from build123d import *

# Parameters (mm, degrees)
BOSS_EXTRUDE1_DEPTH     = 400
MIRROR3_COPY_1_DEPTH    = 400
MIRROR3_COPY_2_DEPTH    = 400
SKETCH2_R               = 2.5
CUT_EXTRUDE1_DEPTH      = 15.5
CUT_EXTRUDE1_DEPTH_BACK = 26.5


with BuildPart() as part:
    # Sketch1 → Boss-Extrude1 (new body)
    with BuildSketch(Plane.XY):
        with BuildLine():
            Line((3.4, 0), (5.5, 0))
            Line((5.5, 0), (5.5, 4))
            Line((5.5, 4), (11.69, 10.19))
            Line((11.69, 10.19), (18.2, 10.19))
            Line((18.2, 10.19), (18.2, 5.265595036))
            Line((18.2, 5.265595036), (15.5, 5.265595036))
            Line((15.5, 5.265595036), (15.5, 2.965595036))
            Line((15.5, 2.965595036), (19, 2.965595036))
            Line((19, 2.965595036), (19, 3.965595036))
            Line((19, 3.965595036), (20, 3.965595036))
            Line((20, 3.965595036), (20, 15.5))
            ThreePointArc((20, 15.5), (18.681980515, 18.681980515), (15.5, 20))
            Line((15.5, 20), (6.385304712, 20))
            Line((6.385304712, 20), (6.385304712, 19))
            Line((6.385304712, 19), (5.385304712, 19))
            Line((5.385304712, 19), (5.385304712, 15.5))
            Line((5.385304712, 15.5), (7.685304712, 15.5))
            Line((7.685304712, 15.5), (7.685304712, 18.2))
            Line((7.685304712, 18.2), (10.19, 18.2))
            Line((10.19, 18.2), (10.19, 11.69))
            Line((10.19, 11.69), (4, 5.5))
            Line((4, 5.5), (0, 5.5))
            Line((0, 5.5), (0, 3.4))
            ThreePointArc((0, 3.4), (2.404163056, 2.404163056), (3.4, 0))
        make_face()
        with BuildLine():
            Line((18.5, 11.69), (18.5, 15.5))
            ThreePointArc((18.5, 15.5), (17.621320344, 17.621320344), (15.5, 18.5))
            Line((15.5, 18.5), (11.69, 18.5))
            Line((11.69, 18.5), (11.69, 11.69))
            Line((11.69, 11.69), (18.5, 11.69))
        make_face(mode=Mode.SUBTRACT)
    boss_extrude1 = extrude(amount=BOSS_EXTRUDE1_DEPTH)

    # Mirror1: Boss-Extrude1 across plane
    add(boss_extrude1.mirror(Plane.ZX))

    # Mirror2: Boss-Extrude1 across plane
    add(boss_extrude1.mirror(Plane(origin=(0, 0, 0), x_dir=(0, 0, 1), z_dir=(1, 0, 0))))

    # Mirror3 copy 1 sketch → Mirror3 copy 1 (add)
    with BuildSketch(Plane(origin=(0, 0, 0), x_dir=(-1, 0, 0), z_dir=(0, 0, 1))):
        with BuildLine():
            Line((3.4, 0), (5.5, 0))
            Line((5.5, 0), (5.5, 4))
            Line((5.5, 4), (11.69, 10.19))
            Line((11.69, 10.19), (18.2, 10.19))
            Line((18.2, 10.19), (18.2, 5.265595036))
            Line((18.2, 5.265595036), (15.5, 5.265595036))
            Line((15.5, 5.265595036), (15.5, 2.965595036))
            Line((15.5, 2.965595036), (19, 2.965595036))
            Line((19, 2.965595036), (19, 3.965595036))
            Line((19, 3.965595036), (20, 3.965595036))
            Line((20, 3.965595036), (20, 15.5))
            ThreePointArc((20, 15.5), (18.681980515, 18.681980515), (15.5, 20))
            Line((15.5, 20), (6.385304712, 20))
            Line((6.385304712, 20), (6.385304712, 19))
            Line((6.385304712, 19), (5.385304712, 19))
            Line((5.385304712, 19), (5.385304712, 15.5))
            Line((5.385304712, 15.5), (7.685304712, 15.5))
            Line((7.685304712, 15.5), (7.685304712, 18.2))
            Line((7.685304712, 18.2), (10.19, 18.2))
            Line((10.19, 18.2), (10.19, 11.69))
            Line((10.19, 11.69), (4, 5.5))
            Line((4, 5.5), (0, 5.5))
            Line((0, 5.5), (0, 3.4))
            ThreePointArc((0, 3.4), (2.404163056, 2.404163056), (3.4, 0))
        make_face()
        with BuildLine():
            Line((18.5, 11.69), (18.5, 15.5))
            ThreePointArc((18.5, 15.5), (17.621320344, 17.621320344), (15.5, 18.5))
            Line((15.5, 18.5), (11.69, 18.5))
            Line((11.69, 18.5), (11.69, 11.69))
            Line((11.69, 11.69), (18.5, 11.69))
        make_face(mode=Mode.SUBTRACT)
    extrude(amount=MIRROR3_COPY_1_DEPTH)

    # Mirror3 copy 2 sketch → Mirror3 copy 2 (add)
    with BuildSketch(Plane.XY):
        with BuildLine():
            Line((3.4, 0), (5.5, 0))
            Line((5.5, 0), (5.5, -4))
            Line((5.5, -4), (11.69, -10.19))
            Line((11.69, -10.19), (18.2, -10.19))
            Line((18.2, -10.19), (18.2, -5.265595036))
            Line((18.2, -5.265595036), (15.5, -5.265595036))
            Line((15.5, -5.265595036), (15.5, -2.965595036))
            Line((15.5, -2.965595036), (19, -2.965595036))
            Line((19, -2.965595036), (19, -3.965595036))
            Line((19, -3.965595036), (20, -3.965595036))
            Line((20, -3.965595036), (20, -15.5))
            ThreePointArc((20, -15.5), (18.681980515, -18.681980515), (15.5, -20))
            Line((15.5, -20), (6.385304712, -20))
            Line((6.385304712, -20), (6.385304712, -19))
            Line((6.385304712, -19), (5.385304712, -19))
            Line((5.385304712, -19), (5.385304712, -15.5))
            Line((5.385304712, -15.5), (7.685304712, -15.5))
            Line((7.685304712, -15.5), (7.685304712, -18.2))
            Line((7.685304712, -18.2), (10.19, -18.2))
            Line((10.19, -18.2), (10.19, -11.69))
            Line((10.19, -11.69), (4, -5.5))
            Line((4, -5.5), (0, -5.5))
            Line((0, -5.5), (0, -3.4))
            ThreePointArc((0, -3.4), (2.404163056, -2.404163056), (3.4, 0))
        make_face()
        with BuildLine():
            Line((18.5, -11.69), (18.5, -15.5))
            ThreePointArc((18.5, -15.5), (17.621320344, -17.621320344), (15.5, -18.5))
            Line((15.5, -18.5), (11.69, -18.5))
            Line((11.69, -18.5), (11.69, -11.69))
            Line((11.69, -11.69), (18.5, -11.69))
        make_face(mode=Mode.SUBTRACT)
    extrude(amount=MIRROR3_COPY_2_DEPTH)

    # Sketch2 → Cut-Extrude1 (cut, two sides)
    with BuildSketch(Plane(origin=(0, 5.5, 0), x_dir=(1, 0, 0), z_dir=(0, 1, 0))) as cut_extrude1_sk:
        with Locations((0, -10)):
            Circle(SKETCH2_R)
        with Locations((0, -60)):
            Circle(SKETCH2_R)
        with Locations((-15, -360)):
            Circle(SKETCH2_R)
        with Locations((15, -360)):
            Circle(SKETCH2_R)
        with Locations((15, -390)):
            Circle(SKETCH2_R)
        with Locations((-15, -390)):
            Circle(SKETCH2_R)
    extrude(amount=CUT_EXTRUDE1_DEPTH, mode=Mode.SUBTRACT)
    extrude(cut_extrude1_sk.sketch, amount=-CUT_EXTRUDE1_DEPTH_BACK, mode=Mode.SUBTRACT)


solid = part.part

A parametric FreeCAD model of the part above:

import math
import FreeCAD as App
import Part
import Sketcher
from FreeCAD import Vector
Q = App.Units.Quantity

doc = App.newDocument("Part")
body = doc.addObject("PartDesign::Body", "Body")

# Sketch on XY plane
sketch1 = doc.addObject("Sketcher::SketchObject", "Sketch")
body.addObject(sketch1)
sketch1.AttachmentSupport = (doc.XY_Plane, [""])
sketch1.MapMode = "FlatFace"
sketch1.addGeometry(Part.LineSegment(Vector(3.4, 0, 0), Vector(5.5, 0, 0)), False)
sketch1.addGeometry(Part.LineSegment(Vector(5.5, 0, 0), Vector(5.5, 4, 0)), False)
sketch1.addGeometry(Part.LineSegment(Vector(5.5, 4, 0), Vector(11.69, 10.19, 0)), False)
sketch1.addGeometry(Part.LineSegment(Vector(11.69, 10.19, 0), Vector(18.2, 10.19, 0)), False)
sketch1.addGeometry(Part.LineSegment(Vector(18.2, 10.19, 0), Vector(18.2, 5.265595, 0)), False)
sketch1.addGeometry(Part.LineSegment(Vector(18.2, 5.265595, 0), Vector(15.5, 5.265595, 0)), False)
sketch1.addGeometry(Part.LineSegment(Vector(15.5, 5.265595, 0), Vector(15.5, 2.965595, 0)), False)
sketch1.addGeometry(Part.LineSegment(Vector(15.5, 2.965595, 0), Vector(19, 2.965595, 0)), False)
sketch1.addGeometry(Part.LineSegment(Vector(19, 2.965595, 0), Vector(19, 3.965595, 0)), False)
sketch1.addGeometry(Part.LineSegment(Vector(19, 3.965595, 0), Vector(20, 3.965595, 0)), False)
sketch1.addGeometry(Part.LineSegment(Vector(20, 3.965595, 0), Vector(20, 15.5, 0)), False)
sketch1.addGeometry(Part.ArcOfCircle(Part.Circle(Vector(15.5, 15.5, 0), Vector(0, 0, 1), 4.5), math.radians(0), math.radians(90)), False)
sketch1.addGeometry(Part.LineSegment(Vector(15.5, 20, 0), Vector(6.385305, 20, 0)), False)
sketch1.addGeometry(Part.LineSegment(Vector(6.385305, 20, 0), Vector(6.385305, 19, 0)), False)
sketch1.addGeometry(Part.LineSegment(Vector(6.385305, 19, 0), Vector(5.385305, 19, 0)), False)
sketch1.addGeometry(Part.LineSegment(Vector(5.385305, 19, 0), Vector(5.385305, 15.5, 0)), False)
sketch1.addGeometry(Part.LineSegment(Vector(5.385305, 15.5, 0), Vector(7.685305, 15.5, 0)), False)
sketch1.addGeometry(Part.LineSegment(Vector(7.685305, 15.5, 0), Vector(7.685305, 18.2, 0)), False)
sketch1.addGeometry(Part.LineSegment(Vector(7.685305, 18.2, 0), Vector(10.19, 18.2, 0)), False)
sketch1.addGeometry(Part.LineSegment(Vector(10.19, 18.2, 0), Vector(10.19, 11.69, 0)), False)
sketch1.addGeometry(Part.LineSegment(Vector(10.19, 11.69, 0), Vector(4, 5.5, 0)), False)
sketch1.addGeometry(Part.LineSegment(Vector(4, 5.5, 0), Vector(0, 5.5, 0)), False)
sketch1.addGeometry(Part.LineSegment(Vector(0, 5.5, 0), Vector(0, 3.4, 0)), False)
sketch1.addGeometry(Part.ArcOfCircle(Part.Circle(Vector(0, 0, 0), Vector(0, 0, 1), 3.4), math.radians(0), math.radians(90)), False)
sketch1.addGeometry(Part.LineSegment(Vector(18.5, 15.5, 0), Vector(18.5, 11.69, 0)), False)
sketch1.addGeometry(Part.LineSegment(Vector(18.5, 11.69, 0), Vector(11.69, 11.69, 0)), False)
sketch1.addGeometry(Part.LineSegment(Vector(11.69, 11.69, 0), Vector(11.69, 18.5, 0)), False)
sketch1.addGeometry(Part.LineSegment(Vector(11.69, 18.5, 0), Vector(15.5, 18.5, 0)), False)
sketch1.addGeometry(Part.ArcOfCircle(Part.Circle(Vector(15.5, 15.5, 0), Vector(0, 0, 1), 3), math.radians(0), math.radians(90)), False)
sketch1.addConstraint(Sketcher.Constraint("Coincident", 0, 2, 1, 1))
sketch1.addConstraint(Sketcher.Constraint("Coincident", 1, 2, 2, 1))
sketch1.addConstraint(Sketcher.Constraint("Coincident", 2, 2, 3, 1))
sketch1.addConstraint(Sketcher.Constraint("Coincident", 3, 2, 4, 1))
sketch1.addConstraint(Sketcher.Constraint("Coincident", 4, 2, 5, 1))
sketch1.addConstraint(Sketcher.Constraint("Coincident", 5, 2, 6, 1))
sketch1.addConstraint(Sketcher.Constraint("Coincident", 6, 2, 7, 1))
sketch1.addConstraint(Sketcher.Constraint("Coincident", 7, 2, 8, 1))
sketch1.addConstraint(Sketcher.Constraint("Coincident", 8, 2, 9, 1))
sketch1.addConstraint(Sketcher.Constraint("Coincident", 9, 2, 10, 1))
sketch1.addConstraint(Sketcher.Constraint("Tangent", 10, 2, 11, 1))
sketch1.addConstraint(Sketcher.Constraint("Tangent", 11, 2, 12, 1))
sketch1.addConstraint(Sketcher.Constraint("Coincident", 12, 2, 13, 1))
sketch1.addConstraint(Sketcher.Constraint("Coincident", 13, 2, 14, 1))
sketch1.addConstraint(Sketcher.Constraint("Coincident", 14, 2, 15, 1))
sketch1.addConstraint(Sketcher.Constraint("Coincident", 15, 2, 16, 1))
sketch1.addConstraint(Sketcher.Constraint("Coincident", 16, 2, 17, 1))
sketch1.addConstraint(Sketcher.Constraint("Coincident", 17, 2, 18, 1))
sketch1.addConstraint(Sketcher.Constraint("Coincident", 18, 2, 19, 1))
sketch1.addConstraint(Sketcher.Constraint("Coincident", 19, 2, 20, 1))
sketch1.addConstraint(Sketcher.Constraint("Coincident", 20, 2, 21, 1))
sketch1.addConstraint(Sketcher.Constraint("Coincident", 21, 2, 22, 1))
sketch1.addConstraint(Sketcher.Constraint("Coincident", 22, 2, 23, 2))
sketch1.addConstraint(Sketcher.Constraint("Coincident", 23, 1, 0, 1))
sketch1.addConstraint(Sketcher.Constraint("Coincident", 24, 2, 25, 1))
sketch1.addConstraint(Sketcher.Constraint("Coincident", 25, 2, 26, 1))
sketch1.addConstraint(Sketcher.Constraint("Coincident", 26, 2, 27, 1))
sketch1.addConstraint(Sketcher.Constraint("Tangent", 27, 2, 28, 2))
sketch1.addConstraint(Sketcher.Constraint("Tangent", 28, 1, 24, 1))
sketch1.addConstraint(Sketcher.Constraint("Horizontal", 0))
sketch1.addConstraint(Sketcher.Constraint("Vertical", 1))
sketch1.addConstraint(Sketcher.Constraint("Horizontal", 3))
sketch1.addConstraint(Sketcher.Constraint("Vertical", 4))
sketch1.addConstraint(Sketcher.Constraint("Horizontal", 5))
sketch1.addConstraint(Sketcher.Constraint("Vertical", 6))
sketch1.addConstraint(Sketcher.Constraint("Horizontal", 7))
sketch1.addConstraint(Sketcher.Constraint("Vertical", 8))
sketch1.addConstraint(Sketcher.Constraint("Horizontal", 9))
sketch1.addConstraint(Sketcher.Constraint("Vertical", 10))
sketch1.addConstraint(Sketcher.Constraint("Horizontal", 12))
sketch1.addConstraint(Sketcher.Constraint("Vertical", 13))
sketch1.addConstraint(Sketcher.Constraint("Horizontal", 14))
sketch1.addConstraint(Sketcher.Constraint("Vertical", 15))
sketch1.addConstraint(Sketcher.Constraint("Horizontal", 16))
sketch1.addConstraint(Sketcher.Constraint("Vertical", 17))
sketch1.addConstraint(Sketcher.Constraint("Horizontal", 18))
sketch1.addConstraint(Sketcher.Constraint("Vertical", 19))
sketch1.addConstraint(Sketcher.Constraint("Horizontal", 21))
sketch1.addConstraint(Sketcher.Constraint("Vertical", 22))
sketch1.addConstraint(Sketcher.Constraint("Vertical", 24))
sketch1.addConstraint(Sketcher.Constraint("Horizontal", 25))
sketch1.addConstraint(Sketcher.Constraint("Vertical", 26))
sketch1.addConstraint(Sketcher.Constraint("Horizontal", 27))
sketch1.addConstraint(Sketcher.Constraint("Coincident", 23, 3, -1, 1))
sketch1.addConstraint(Sketcher.Constraint("Coincident", 28, 3, 11, 3))
sketch1.addConstraint(Sketcher.Constraint("PointOnObject", 0, 2, -1))
sketch1.addConstraint(Sketcher.Constraint("PointOnObject", 21, 2, -2))
sketch1.addConstraint(Sketcher.Constraint("Parallel", 2, 20))
sketch1.addConstraint(Sketcher.Constraint("Horizontal", 10, 2, 15, 2))
sketch1.addConstraint(Sketcher.Constraint("Horizontal", 19, 2, 24, 2))
sketch1.addConstraint(Sketcher.Constraint("Vertical", 28, 3, 5, 2))
sketch1.addConstraint(Sketcher.Constraint("Vertical", 2, 2, 25, 2))
sketch1.addConstraint(Sketcher.Constraint("Equal", 9, 14))
sketch1.addConstraint(Sketcher.Constraint("Equal", 21, 1))
sketch1.addConstraint(Sketcher.Constraint("Equal", 16, 6))
sketch1.addConstraint(Sketcher.Constraint("Equal", 14, 8))
sketch1.addConstraint(Sketcher.Constraint("Equal", 8, 13))
sketch1.addConstraint(Sketcher.Constraint("Equal", 5, 17))
sketch1.addConstraint(Sketcher.Constraint("Equal", 3, 19))
sketch1.addConstraint(Sketcher.Constraint("Equal", 0, 22))
sketch1.addConstraint(Sketcher.Constraint("Equal", 2, 20))
sketch1.addConstraint(Sketcher.Constraint("Radius", 28, Q("3 mm")))
sketch1.addConstraint(Sketcher.Constraint("Radius", 11, Q("4.5 mm")))
sketch1.addConstraint(Sketcher.Constraint("Radius", 23, Q("3.4 mm")))
sketch1.addConstraint(Sketcher.Constraint("DistanceX", 9, 1, 9, 2, Q("1 mm")))
sketch1.addConstraint(Sketcher.Constraint("DistanceX", 21, 2, 21, 1, Q("4 mm")))
sketch1.addConstraint(Sketcher.Constraint("Angle", 2, Q("45 deg")))
sketch1.addConstraint(Sketcher.Constraint("DistanceX", 0, 1, 0, 2, Q("2.1 mm")))
sketch1.addConstraint(Sketcher.Constraint("DistanceX", 5, 2, 5, 1, Q("2.7 mm")))
sketch1.addConstraint(Sketcher.Constraint("DistanceX", 16, 1, 16, 2, Q("2.3 mm")))
sketch1.addConstraint(Sketcher.Constraint("DistanceX", -1, 1, 7, 2, Q("19 mm")))
sketch1.addConstraint(Sketcher.Constraint("DistanceX", 3, 1, 3, 2, Q("6.51 mm")))
sketch1.addConstraint(Sketcher.Constraint("DistanceX", 12, 2, 12, 1, Q("9.114695 mm")))
sketch1.addConstraint(Sketcher.Constraint("DistanceY", 4, 2, 4, 1, Q("4.924405 mm")))
pad1 = doc.addObject("PartDesign::Pad", "Pad")
body.addObject(pad1)
pad1.Profile = sketch1
pad1.Length = 400
doc.recompute()

mirrored = doc.addObject("PartDesign::Mirrored", "Mirrored")
body.addObject(mirrored)
mirrored.Originals = [pad1]
mirrored.MirrorPlane = (doc.XZ_Plane, [""])
body.Tip = mirrored
doc.recompute()

mirrored2 = doc.addObject("PartDesign::Mirrored", "Mirrored001")
body.addObject(mirrored2)
mirrored2.Originals = [pad1]
mirrored2.MirrorPlane = (doc.YZ_Plane, [""])
body.Tip = mirrored2

# Sketch on XY plane
sketch2 = doc.addObject("Sketcher::SketchObject", "Sketch001")
body.addObject(sketch2)
sketch2.AttachmentSupport = (doc.XY_Plane, [""])
sketch2.MapMode = "FlatFace"
sketch2.addGeometry(Part.LineSegment(Vector(-3.4, 0, 0), Vector(-5.5, 0, 0)), False)
sketch2.addGeometry(Part.LineSegment(Vector(-5.5, 0, 0), Vector(-5.5, -4, 0)), False)
sketch2.addGeometry(Part.LineSegment(Vector(-5.5, -4, 0), Vector(-11.69, -10.19, 0)), False)
sketch2.addGeometry(Part.LineSegment(Vector(-11.69, -10.19, 0), Vector(-18.2, -10.19, 0)), False)
sketch2.addGeometry(Part.LineSegment(Vector(-18.2, -10.19, 0), Vector(-18.2, -5.265595, 0)), False)
sketch2.addGeometry(Part.LineSegment(Vector(-18.2, -5.265595, 0), Vector(-15.5, -5.265595, 0)), False)
sketch2.addGeometry(Part.LineSegment(Vector(-15.5, -5.265595, 0), Vector(-15.5, -2.965595, 0)), False)
sketch2.addGeometry(Part.LineSegment(Vector(-15.5, -2.965595, 0), Vector(-19, -2.965595, 0)), False)
sketch2.addGeometry(Part.LineSegment(Vector(-19, -2.965595, 0), Vector(-19, -3.965595, 0)), False)
sketch2.addGeometry(Part.LineSegment(Vector(-19, -3.965595, 0), Vector(-20, -3.965595, 0)), False)
sketch2.addGeometry(Part.LineSegment(Vector(-20, -3.965595, 0), Vector(-20, -15.5, 0)), False)
sketch2.addGeometry(Part.ArcOfCircle(Part.Circle(Vector(-15.5, -15.5, 0), Vector(0, 0, 1), 4.5), math.radians(-180), math.radians(-90)), False)
sketch2.addGeometry(Part.LineSegment(Vector(-15.5, -20, 0), Vector(-6.385305, -20, 0)), False)
sketch2.addGeometry(Part.LineSegment(Vector(-6.385305, -20, 0), Vector(-6.385305, -19, 0)), False)
sketch2.addGeometry(Part.LineSegment(Vector(-6.385305, -19, 0), Vector(-5.385305, -19, 0)), False)
sketch2.addGeometry(Part.LineSegment(Vector(-5.385305, -19, 0), Vector(-5.385305, -15.5, 0)), False)
sketch2.addGeometry(Part.LineSegment(Vector(-5.385305, -15.5, 0), Vector(-7.685305, -15.5, 0)), False)
sketch2.addGeometry(Part.LineSegment(Vector(-7.685305, -15.5, 0), Vector(-7.685305, -18.2, 0)), False)
sketch2.addGeometry(Part.LineSegment(Vector(-7.685305, -18.2, 0), Vector(-10.19, -18.2, 0)), False)
sketch2.addGeometry(Part.LineSegment(Vector(-10.19, -18.2, 0), Vector(-10.19, -11.69, 0)), False)
sketch2.addGeometry(Part.LineSegment(Vector(-10.19, -11.69, 0), Vector(-4, -5.5, 0)), False)
sketch2.addGeometry(Part.LineSegment(Vector(-4, -5.5, 0), Vector(0, -5.5, 0)), False)
sketch2.addGeometry(Part.LineSegment(Vector(0, -5.5, 0), Vector(0, -3.4, 0)), False)
sketch2.addGeometry(Part.ArcOfCircle(Part.Circle(Vector(0, 0, 0), Vector(0, 0, 1), 3.4), math.radians(180), math.radians(270)), False)
sketch2.addGeometry(Part.LineSegment(Vector(-18.5, -15.5, 0), Vector(-18.5, -11.69, 0)), False)
sketch2.addGeometry(Part.LineSegment(Vector(-18.5, -11.69, 0), Vector(-11.69, -11.69, 0)), False)
sketch2.addGeometry(Part.LineSegment(Vector(-11.69, -11.69, 0), Vector(-11.69, -18.5, 0)), False)
sketch2.addGeometry(Part.LineSegment(Vector(-11.69, -18.5, 0), Vector(-15.5, -18.5, 0)), False)
sketch2.addGeometry(Part.ArcOfCircle(Part.Circle(Vector(-15.5, -15.5, 0), Vector(0, 0, 1), 3), math.radians(180), math.radians(270)), False)
sketch2.addConstraint(Sketcher.Constraint("Coincident", 0, 2, 1, 1))
sketch2.addConstraint(Sketcher.Constraint("Coincident", 1, 2, 2, 1))
sketch2.addConstraint(Sketcher.Constraint("Coincident", 2, 2, 3, 1))
sketch2.addConstraint(Sketcher.Constraint("Coincident", 3, 2, 4, 1))
sketch2.addConstraint(Sketcher.Constraint("Coincident", 4, 2, 5, 1))
sketch2.addConstraint(Sketcher.Constraint("Coincident", 5, 2, 6, 1))
sketch2.addConstraint(Sketcher.Constraint("Coincident", 6, 2, 7, 1))
sketch2.addConstraint(Sketcher.Constraint("Coincident", 7, 2, 8, 1))
sketch2.addConstraint(Sketcher.Constraint("Coincident", 8, 2, 9, 1))
sketch2.addConstraint(Sketcher.Constraint("Coincident", 9, 2, 10, 1))
sketch2.addConstraint(Sketcher.Constraint("Tangent", 10, 2, 11, 1))
sketch2.addConstraint(Sketcher.Constraint("Tangent", 11, 2, 12, 1))
sketch2.addConstraint(Sketcher.Constraint("Coincident", 12, 2, 13, 1))
sketch2.addConstraint(Sketcher.Constraint("Coincident", 13, 2, 14, 1))
sketch2.addConstraint(Sketcher.Constraint("Coincident", 14, 2, 15, 1))
sketch2.addConstraint(Sketcher.Constraint("Coincident", 15, 2, 16, 1))
sketch2.addConstraint(Sketcher.Constraint("Coincident", 16, 2, 17, 1))
sketch2.addConstraint(Sketcher.Constraint("Coincident", 17, 2, 18, 1))
sketch2.addConstraint(Sketcher.Constraint("Coincident", 18, 2, 19, 1))
sketch2.addConstraint(Sketcher.Constraint("Coincident", 19, 2, 20, 1))
sketch2.addConstraint(Sketcher.Constraint("Coincident", 20, 2, 21, 1))
sketch2.addConstraint(Sketcher.Constraint("Coincident", 21, 2, 22, 1))
sketch2.addConstraint(Sketcher.Constraint("Coincident", 22, 2, 23, 2))
sketch2.addConstraint(Sketcher.Constraint("Coincident", 23, 1, 0, 1))
sketch2.addConstraint(Sketcher.Constraint("Coincident", 24, 2, 25, 1))
sketch2.addConstraint(Sketcher.Constraint("Coincident", 25, 2, 26, 1))
sketch2.addConstraint(Sketcher.Constraint("Coincident", 26, 2, 27, 1))
sketch2.addConstraint(Sketcher.Constraint("Tangent", 27, 2, 28, 2))
sketch2.addConstraint(Sketcher.Constraint("Tangent", 28, 1, 24, 1))
sketch2.addConstraint(Sketcher.Constraint("Horizontal", 0))
sketch2.addConstraint(Sketcher.Constraint("Vertical", 1))
sketch2.addConstraint(Sketcher.Constraint("Horizontal", 3))
sketch2.addConstraint(Sketcher.Constraint("Vertical", 4))
sketch2.addConstraint(Sketcher.Constraint("Horizontal", 5))
sketch2.addConstraint(Sketcher.Constraint("Vertical", 6))
sketch2.addConstraint(Sketcher.Constraint("Horizontal", 7))
sketch2.addConstraint(Sketcher.Constraint("Vertical", 8))
sketch2.addConstraint(Sketcher.Constraint("Horizontal", 9))
sketch2.addConstraint(Sketcher.Constraint("Vertical", 10))
sketch2.addConstraint(Sketcher.Constraint("Horizontal", 12))
sketch2.addConstraint(Sketcher.Constraint("Vertical", 13))
sketch2.addConstraint(Sketcher.Constraint("Horizontal", 14))
sketch2.addConstraint(Sketcher.Constraint("Vertical", 15))
sketch2.addConstraint(Sketcher.Constraint("Horizontal", 16))
sketch2.addConstraint(Sketcher.Constraint("Vertical", 17))
sketch2.addConstraint(Sketcher.Constraint("Horizontal", 18))
sketch2.addConstraint(Sketcher.Constraint("Vertical", 19))
sketch2.addConstraint(Sketcher.Constraint("Horizontal", 21))
sketch2.addConstraint(Sketcher.Constraint("Vertical", 22))
sketch2.addConstraint(Sketcher.Constraint("Vertical", 24))
sketch2.addConstraint(Sketcher.Constraint("Horizontal", 25))
sketch2.addConstraint(Sketcher.Constraint("Vertical", 26))
sketch2.addConstraint(Sketcher.Constraint("Horizontal", 27))
sketch2.addConstraint(Sketcher.Constraint("Coincident", 23, 3, -1, 1))
sketch2.addConstraint(Sketcher.Constraint("Coincident", 28, 3, 11, 3))
sketch2.addConstraint(Sketcher.Constraint("PointOnObject", 0, 2, -1))
sketch2.addConstraint(Sketcher.Constraint("PointOnObject", 21, 2, -2))
sketch2.addConstraint(Sketcher.Constraint("Parallel", 2, 20))
sketch2.addConstraint(Sketcher.Constraint("Horizontal", 10, 2, 15, 2))
sketch2.addConstraint(Sketcher.Constraint("Horizontal", 19, 2, 24, 2))
sketch2.addConstraint(Sketcher.Constraint("Vertical", 28, 3, 5, 2))
sketch2.addConstraint(Sketcher.Constraint("Vertical", 2, 2, 25, 2))
sketch2.addConstraint(Sketcher.Constraint("Equal", 9, 14))
sketch2.addConstraint(Sketcher.Constraint("Equal", 21, 1))
sketch2.addConstraint(Sketcher.Constraint("Equal", 16, 6))
sketch2.addConstraint(Sketcher.Constraint("Equal", 14, 8))
sketch2.addConstraint(Sketcher.Constraint("Equal", 8, 13))
sketch2.addConstraint(Sketcher.Constraint("Equal", 5, 17))
sketch2.addConstraint(Sketcher.Constraint("Equal", 3, 19))
sketch2.addConstraint(Sketcher.Constraint("Equal", 0, 22))
sketch2.addConstraint(Sketcher.Constraint("Equal", 2, 20))
sketch2.addConstraint(Sketcher.Constraint("Radius", 28, Q("3 mm")))
sketch2.addConstraint(Sketcher.Constraint("Radius", 11, Q("4.5 mm")))
sketch2.addConstraint(Sketcher.Constraint("Radius", 23, Q("3.4 mm")))
sketch2.addConstraint(Sketcher.Constraint("DistanceX", 9, 2, 9, 1, Q("1 mm")))
sketch2.addConstraint(Sketcher.Constraint("DistanceX", 21, 1, 21, 2, Q("4 mm")))
sketch2.addConstraint(Sketcher.Constraint("Angle", 2, Q("-135 deg")))
sketch2.addConstraint(Sketcher.Constraint("DistanceX", 0, 2, 0, 1, Q("2.1 mm")))
sketch2.addConstraint(Sketcher.Constraint("DistanceX", 5, 1, 5, 2, Q("2.7 mm")))
sketch2.addConstraint(Sketcher.Constraint("DistanceX", 16, 2, 16, 1, Q("2.3 mm")))
sketch2.addConstraint(Sketcher.Constraint("DistanceX", 7, 2, -1, 1, Q("19 mm")))
sketch2.addConstraint(Sketcher.Constraint("DistanceX", 3, 2, 3, 1, Q("6.51 mm")))
sketch2.addConstraint(Sketcher.Constraint("DistanceX", 12, 1, 12, 2, Q("9.114695 mm")))
sketch2.addConstraint(Sketcher.Constraint("DistanceY", 4, 1, 4, 2, Q("4.924405 mm")))
pad2 = doc.addObject("PartDesign::Pad", "Pad001")
body.addObject(pad2)
pad2.Profile = sketch2
pad2.Length = 400

# Sketch on XY plane
sketch3 = doc.addObject("Sketcher::SketchObject", "Sketch002")
body.addObject(sketch3)
sketch3.AttachmentSupport = (doc.XY_Plane, [""])
sketch3.MapMode = "FlatFace"
sketch3.addGeometry(Part.LineSegment(Vector(5.5, 0, 0), Vector(3.4, 0, 0)), False)
sketch3.addGeometry(Part.ArcOfCircle(Part.Circle(Vector(0, 0, 0), Vector(0, 0, 1), 3.4), math.radians(-90), math.radians(0)), False)
sketch3.addGeometry(Part.LineSegment(Vector(0, -3.4, 0), Vector(0, -5.5, 0)), False)
sketch3.addGeometry(Part.LineSegment(Vector(0, -5.5, 0), Vector(4, -5.5, 0)), False)
sketch3.addGeometry(Part.LineSegment(Vector(4, -5.5, 0), Vector(10.19, -11.69, 0)), False)
sketch3.addGeometry(Part.LineSegment(Vector(10.19, -11.69, 0), Vector(10.19, -18.2, 0)), False)
sketch3.addGeometry(Part.LineSegment(Vector(10.19, -18.2, 0), Vector(7.685305, -18.2, 0)), False)
sketch3.addGeometry(Part.LineSegment(Vector(7.685305, -18.2, 0), Vector(7.685305, -15.5, 0)), False)
sketch3.addGeometry(Part.LineSegment(Vector(7.685305, -15.5, 0), Vector(5.385305, -15.5, 0)), False)
sketch3.addGeometry(Part.LineSegment(Vector(5.385305, -15.5, 0), Vector(5.385305, -19, 0)), False)
sketch3.addGeometry(Part.LineSegment(Vector(5.385305, -19, 0), Vector(6.385305, -19, 0)), False)
sketch3.addGeometry(Part.LineSegment(Vector(6.385305, -19, 0), Vector(6.385305, -20, 0)), False)
sketch3.addGeometry(Part.LineSegment(Vector(6.385305, -20, 0), Vector(15.5, -20, 0)), False)
sketch3.addGeometry(Part.ArcOfCircle(Part.Circle(Vector(15.5, -15.5, 0), Vector(0, 0, 1), 4.5), math.radians(-90), math.radians(0)), False)
sketch3.addGeometry(Part.LineSegment(Vector(20, -15.5, 0), Vector(20, -3.965595, 0)), False)
sketch3.addGeometry(Part.LineSegment(Vector(20, -3.965595, 0), Vector(19, -3.965595, 0)), False)
sketch3.addGeometry(Part.LineSegment(Vector(19, -3.965595, 0), Vector(19, -2.965595, 0)), False)
sketch3.addGeometry(Part.LineSegment(Vector(19, -2.965595, 0), Vector(15.5, -2.965595, 0)), False)
sketch3.addGeometry(Part.LineSegment(Vector(15.5, -2.965595, 0), Vector(15.5, -5.265595, 0)), False)
sketch3.addGeometry(Part.LineSegment(Vector(15.5, -5.265595, 0), Vector(18.2, -5.265595, 0)), False)
sketch3.addGeometry(Part.LineSegment(Vector(18.2, -5.265595, 0), Vector(18.2, -10.19, 0)), False)
sketch3.addGeometry(Part.LineSegment(Vector(18.2, -10.19, 0), Vector(11.69, -10.19, 0)), False)
sketch3.addGeometry(Part.LineSegment(Vector(11.69, -10.19, 0), Vector(5.5, -4, 0)), False)
sketch3.addGeometry(Part.LineSegment(Vector(5.5, -4, 0), Vector(5.5, 0, 0)), False)
sketch3.addGeometry(Part.LineSegment(Vector(18.5, -11.69, 0), Vector(18.5, -15.5, 0)), False)
sketch3.addGeometry(Part.ArcOfCircle(Part.Circle(Vector(15.5, -15.5, 0), Vector(0, 0, 1), 3), math.radians(-90), math.radians(0)), False)
sketch3.addGeometry(Part.LineSegment(Vector(15.5, -18.5, 0), Vector(11.69, -18.5, 0)), False)
sketch3.addGeometry(Part.LineSegment(Vector(11.69, -18.5, 0), Vector(11.69, -11.69, 0)), False)
sketch3.addGeometry(Part.LineSegment(Vector(11.69, -11.69, 0), Vector(18.5, -11.69, 0)), False)
sketch3.addConstraint(Sketcher.Constraint("Coincident", 0, 2, 1, 2))
sketch3.addConstraint(Sketcher.Constraint("Coincident", 1, 1, 2, 1))
sketch3.addConstraint(Sketcher.Constraint("Coincident", 2, 2, 3, 1))
sketch3.addConstraint(Sketcher.Constraint("Coincident", 3, 2, 4, 1))
sketch3.addConstraint(Sketcher.Constraint("Coincident", 4, 2, 5, 1))
sketch3.addConstraint(Sketcher.Constraint("Coincident", 5, 2, 6, 1))
sketch3.addConstraint(Sketcher.Constraint("Coincident", 6, 2, 7, 1))
sketch3.addConstraint(Sketcher.Constraint("Coincident", 7, 2, 8, 1))
sketch3.addConstraint(Sketcher.Constraint("Coincident", 8, 2, 9, 1))
sketch3.addConstraint(Sketcher.Constraint("Coincident", 9, 2, 10, 1))
sketch3.addConstraint(Sketcher.Constraint("Coincident", 10, 2, 11, 1))
sketch3.addConstraint(Sketcher.Constraint("Coincident", 11, 2, 12, 1))
sketch3.addConstraint(Sketcher.Constraint("Tangent", 12, 2, 13, 1))
sketch3.addConstraint(Sketcher.Constraint("Tangent", 13, 2, 14, 1))
sketch3.addConstraint(Sketcher.Constraint("Coincident", 14, 2, 15, 1))
sketch3.addConstraint(Sketcher.Constraint("Coincident", 15, 2, 16, 1))
sketch3.addConstraint(Sketcher.Constraint("Coincident", 16, 2, 17, 1))
sketch3.addConstraint(Sketcher.Constraint("Coincident", 17, 2, 18, 1))
sketch3.addConstraint(Sketcher.Constraint("Coincident", 18, 2, 19, 1))
sketch3.addConstraint(Sketcher.Constraint("Coincident", 19, 2, 20, 1))
sketch3.addConstraint(Sketcher.Constraint("Coincident", 20, 2, 21, 1))
sketch3.addConstraint(Sketcher.Constraint("Coincident", 21, 2, 22, 1))
sketch3.addConstraint(Sketcher.Constraint("Coincident", 22, 2, 23, 1))
sketch3.addConstraint(Sketcher.Constraint("Coincident", 23, 2, 0, 1))
sketch3.addConstraint(Sketcher.Constraint("Tangent", 24, 2, 25, 2))
sketch3.addConstraint(Sketcher.Constraint("Tangent", 25, 1, 26, 1))
sketch3.addConstraint(Sketcher.Constraint("Coincident", 26, 2, 27, 1))
sketch3.addConstraint(Sketcher.Constraint("Coincident", 27, 2, 28, 1))
sketch3.addConstraint(Sketcher.Constraint("Coincident", 28, 2, 24, 1))
sketch3.addConstraint(Sketcher.Constraint("Horizontal", 0))
sketch3.addConstraint(Sketcher.Constraint("Vertical", 2))
sketch3.addConstraint(Sketcher.Constraint("Horizontal", 3))
sketch3.addConstraint(Sketcher.Constraint("Vertical", 5))
sketch3.addConstraint(Sketcher.Constraint("Horizontal", 6))
sketch3.addConstraint(Sketcher.Constraint("Vertical", 7))
sketch3.addConstraint(Sketcher.Constraint("Horizontal", 8))
sketch3.addConstraint(Sketcher.Constraint("Vertical", 9))
sketch3.addConstraint(Sketcher.Constraint("Horizontal", 10))
sketch3.addConstraint(Sketcher.Constraint("Vertical", 11))
sketch3.addConstraint(Sketcher.Constraint("Horizontal", 12))
sketch3.addConstraint(Sketcher.Constraint("Vertical", 14))
sketch3.addConstraint(Sketcher.Constraint("Horizontal", 15))
sketch3.addConstraint(Sketcher.Constraint("Vertical", 16))
sketch3.addConstraint(Sketcher.Constraint("Horizontal", 17))
sketch3.addConstraint(Sketcher.Constraint("Vertical", 18))
sketch3.addConstraint(Sketcher.Constraint("Horizontal", 19))
sketch3.addConstraint(Sketcher.Constraint("Vertical", 20))
sketch3.addConstraint(Sketcher.Constraint("Horizontal", 21))
sketch3.addConstraint(Sketcher.Constraint("Vertical", 23))
sketch3.addConstraint(Sketcher.Constraint("Vertical", 24))
sketch3.addConstraint(Sketcher.Constraint("Horizontal", 26))
sketch3.addConstraint(Sketcher.Constraint("Vertical", 27))
sketch3.addConstraint(Sketcher.Constraint("Horizontal", 28))
sketch3.addConstraint(Sketcher.Constraint("Coincident", 1, 3, -1, 1))
sketch3.addConstraint(Sketcher.Constraint("Coincident", 25, 3, 13, 3))
sketch3.addConstraint(Sketcher.Constraint("PointOnObject", 0, 2, -1))
sketch3.addConstraint(Sketcher.Constraint("PointOnObject", 1, 1, -2))
sketch3.addConstraint(Sketcher.Constraint("Parallel", 4, 22))
sketch3.addConstraint(Sketcher.Constraint("Horizontal", 25, 3, 7, 2))
sketch3.addConstraint(Sketcher.Constraint("Horizontal", 4, 2, 27, 2))
sketch3.addConstraint(Sketcher.Constraint("Vertical", 12, 2, 17, 2))
sketch3.addConstraint(Sketcher.Constraint("Vertical", 21, 2, 26, 2))
sketch3.addConstraint(Sketcher.Constraint("Equal", 10, 15))
sketch3.addConstraint(Sketcher.Constraint("Equal", 0, 2))
sketch3.addConstraint(Sketcher.Constraint("Equal", 21, 5))
sketch3.addConstraint(Sketcher.Constraint("Equal", 19, 7))
sketch3.addConstraint(Sketcher.Constraint("Equal", 17, 9))
sketch3.addConstraint(Sketcher.Constraint("Equal", 11, 16))
sketch3.addConstraint(Sketcher.Constraint("Equal", 8, 18))
sketch3.addConstraint(Sketcher.Constraint("Equal", 3, 23))
sketch3.addConstraint(Sketcher.Constraint("Equal", 4, 22))
sketch3.addConstraint(Sketcher.Constraint("Radius", 25, Q("3 mm")))
sketch3.addConstraint(Sketcher.Constraint("Radius", 1, Q("3.4 mm")))
sketch3.addConstraint(Sketcher.Constraint("Radius", 13, Q("4.5 mm")))
sketch3.addConstraint(Sketcher.Constraint("DistanceX", 3, 1, 3, 2, Q("4 mm")))
sketch3.addConstraint(Sketcher.Constraint("DistanceX", 10, 1, 10, 2, Q("1 mm")))
sketch3.addConstraint(Sketcher.Constraint("Angle", 4, Q("-45 deg")))
sketch3.addConstraint(Sketcher.Constraint("DistanceX", 0, 2, 0, 1, Q("2.1 mm")))
sketch3.addConstraint(Sketcher.Constraint("DistanceX", 8, 2, 8, 1, Q("2.3 mm")))
sketch3.addConstraint(Sketcher.Constraint("DistanceX", 19, 1, 19, 2, Q("2.7 mm")))
sketch3.addConstraint(Sketcher.Constraint("DistanceY", 9, 2, -1, 1, Q("19 mm")))
sketch3.addConstraint(Sketcher.Constraint("DistanceX", 21, 2, 21, 1, Q("6.51 mm")))
sketch3.addConstraint(Sketcher.Constraint("DistanceX", 6, 2, 6, 1, Q("2.504695 mm")))
sketch3.addConstraint(Sketcher.Constraint("DistanceY", 14, 1, 14, 2, Q("11.534405 mm")))
pad3 = doc.addObject("PartDesign::Pad", "Pad002")
body.addObject(pad3)
pad3.Profile = sketch3
pad3.Length = 400

# Sketch on XZ plane
sketch4 = doc.addObject("Sketcher::SketchObject", "Sketch003")
body.addObject(sketch4)
sketch4.AttachmentSupport = (doc.XZ_Plane, [""])
sketch4.MapMode = "FlatFace"
sketch4.AttachmentOffset = App.Placement(Vector(0, 0, -5.5), App.Rotation())
sketch4.addGeometry(Part.Circle(Vector(0, 10, 0), Vector(0, 0, 1), 2.5), False)
sketch4.addGeometry(Part.Circle(Vector(0, 60, 0), Vector(0, 0, 1), 2.5), False)
sketch4.addGeometry(Part.Circle(Vector(-15, 360, 0), Vector(0, 0, 1), 2.5), False)
sketch4.addGeometry(Part.Circle(Vector(15, 360, 0), Vector(0, 0, 1), 2.5), False)
sketch4.addGeometry(Part.Circle(Vector(15, 390, 0), Vector(0, 0, 1), 2.5), False)
sketch4.addGeometry(Part.Circle(Vector(-15, 390, 0), Vector(0, 0, 1), 2.5), False)
sketch4.addConstraint(Sketcher.Constraint("Equal", 0, 1))
sketch4.addConstraint(Sketcher.Constraint("Equal", 1, 2))
sketch4.addConstraint(Sketcher.Constraint("Equal", 2, 3))
sketch4.addConstraint(Sketcher.Constraint("Equal", 3, 4))
sketch4.addConstraint(Sketcher.Constraint("Equal", 4, 5))
sketch4.addConstraint(Sketcher.Constraint("Symmetric", 2, 3, 3, 3, -2))
sketch4.addConstraint(Sketcher.Constraint("Symmetric", 4, 3, 5, 3, -2))
sketch4.addConstraint(Sketcher.Constraint("PointOnObject", 0, 3, -2))
sketch4.addConstraint(Sketcher.Constraint("PointOnObject", 1, 3, -2))
sketch4.addConstraint(Sketcher.Constraint("Vertical", 3, 3, 4, 3))
sketch4.addConstraint(Sketcher.Constraint("Diameter", 0, Q("5 mm")))
sketch4.addConstraint(Sketcher.Constraint("DistanceY", -1, 1, 0, 3, Q("10 mm")))
sketch4.addConstraint(Sketcher.Constraint("DistanceY", -1, 1, 1, 3, Q("60 mm")))
sketch4.addConstraint(Sketcher.Constraint("DistanceX", 2, 3, -1, 1, Q("15 mm")))
sketch4.addConstraint(Sketcher.Constraint("DistanceY", -1, 1, 2, 3, Q("360 mm")))
sketch4.addConstraint(Sketcher.Constraint("DistanceY", -1, 1, 4, 3, Q("390 mm")))
pocket1 = doc.addObject("PartDesign::Pocket", "Pocket")
body.addObject(pocket1)
pocket1.Profile = sketch4
pocket1.Type = "ThroughAll"
pocket1.Midplane = True

doc.recompute()
